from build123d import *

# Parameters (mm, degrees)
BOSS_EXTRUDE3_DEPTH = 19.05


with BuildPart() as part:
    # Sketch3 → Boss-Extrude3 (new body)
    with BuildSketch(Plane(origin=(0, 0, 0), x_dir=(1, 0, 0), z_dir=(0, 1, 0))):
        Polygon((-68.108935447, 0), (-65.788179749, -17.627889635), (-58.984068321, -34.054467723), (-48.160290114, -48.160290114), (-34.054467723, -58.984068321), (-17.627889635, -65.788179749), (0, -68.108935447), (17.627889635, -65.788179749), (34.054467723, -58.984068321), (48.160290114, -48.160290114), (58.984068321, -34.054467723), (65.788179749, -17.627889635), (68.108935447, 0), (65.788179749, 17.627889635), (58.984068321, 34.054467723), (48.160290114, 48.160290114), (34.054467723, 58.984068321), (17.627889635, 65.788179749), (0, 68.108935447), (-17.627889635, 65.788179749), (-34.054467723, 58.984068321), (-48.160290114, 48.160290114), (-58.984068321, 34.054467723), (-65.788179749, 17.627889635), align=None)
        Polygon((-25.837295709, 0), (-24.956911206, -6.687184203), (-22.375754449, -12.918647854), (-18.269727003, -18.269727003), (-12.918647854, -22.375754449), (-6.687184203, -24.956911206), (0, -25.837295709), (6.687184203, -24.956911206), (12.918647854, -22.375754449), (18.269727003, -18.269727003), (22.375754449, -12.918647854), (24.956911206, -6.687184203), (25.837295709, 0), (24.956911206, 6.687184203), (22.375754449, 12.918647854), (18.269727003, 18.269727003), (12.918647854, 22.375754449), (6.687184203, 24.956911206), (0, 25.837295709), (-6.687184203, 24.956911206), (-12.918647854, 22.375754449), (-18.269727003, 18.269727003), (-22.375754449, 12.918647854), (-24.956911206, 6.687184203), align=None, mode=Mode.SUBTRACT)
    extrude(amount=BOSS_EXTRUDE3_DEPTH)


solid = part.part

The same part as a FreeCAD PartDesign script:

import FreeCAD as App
import Part
import Sketcher

V = App.Vector
Q = App.Units.Quantity


def add_polygon(sketch, points):
    """Adds a closed chain of lines whose ends are joined by coincident constraints."""
    first, n = sketch.GeometryCount, len(points)
    for a, b in zip(points, points[1:] + points[:1]):
        sketch.addGeometry(Part.LineSegment(App.Vector(*a, 0), App.Vector(*b, 0)), False)
    for i in range(n):
        sketch.addConstraint(Sketcher.Constraint("Coincident", first + i, 2, first + (i + 1) % n, 1))

doc = App.newDocument("Part")
body = doc.addObject("PartDesign::Body", "Body")

sketch1 = body.newObject("Sketcher::SketchObject", "Sketch")
sketch1.AttachmentSupport = (doc.getObject("XZ_Plane"), [""])
sketch1.MapMode = "FlatFace"
add_polygon(sketch1, [(-68, 0), (-66, 18), (-59, 34), (-48, 48), (-34, 59), (-18, 66), (0, 68), (18, 66), (34, 59), (48, 48), (59, 34), (66, 18), (68, 0), (66, -18), (59, -34), (48, -48), (34, -59), (18, -66), (0, -68), (-18, -66), (-34, -59), (-48, -48), (-59, -34), (-66, -18)])
add_polygon(sketch1, [(-25, 7), (-26, 0), (-25, -7), (-22, -13), (-18, -18), (-13, -22), (-7, -25), (0, -26), (7, -25), (13, -22), (18, -18), (22, -13), (25, -7), (26, 0), (25, 7), (22, 13), (18, 18), (13, 22), (7, 25), (0, 26), (-7, 25), (-13, 22), (-18, 18), (-22, 13)])
sketch1.addConstraint([
    Sketcher.Constraint("Symmetric", 0, 2, 12, 2, -1, 1),
    Sketcher.Constraint("Symmetric", 1, 2, 13, 2, -1, 1),
    Sketcher.Constraint("Symmetric", 2, 2, 14, 2, -1, 1),
    Sketcher.Constraint("Symmetric", 3, 2, 15, 2, -1, 1),
    Sketcher.Constraint("Symmetric", 4, 2, 16, 2, -1, 1),
    Sketcher.Constraint("Symmetric", 5, 2, 17, 2, -1, 1),
    Sketcher.Constraint("Symmetric", 6, 2, 18, 2, -1, 1),
    Sketcher.Constraint("Symmetric", 7, 2, 19, 2, -1, 1),
    Sketcher.Constraint("Symmetric", 8, 2, 20, 2, -1, 1),
    Sketcher.Constraint("Symmetric", 9, 2, 21, 2, -1, 1),
    Sketcher.Constraint("Symmetric", 10, 2, 22, 2, -1, 1),
    Sketcher.Constraint("Symmetric", 11, 2, 23, 2, -1, 1),
    Sketcher.Constraint("Symmetric", 24, 2, 36, 2, -1, 1),
    Sketcher.Constraint("Symmetric", 25, 2, 37, 2, -1, 1),
    Sketcher.Constraint("Symmetric", 26, 2, 38, 2, -1, 1),
    Sketcher.Constraint("Symmetric", 27, 2, 39, 2, -1, 1),
    Sketcher.Constraint("Symmetric", 28, 2, 40, 2, -1, 1),
    Sketcher.Constraint("Symmetric", 29, 2, 41, 2, -1, 1),
    Sketcher.Constraint("Symmetric", 30, 2, 42, 2, -1, 1),
    Sketcher.Constraint("Symmetric", 31, 2, 43, 2, -1, 1),
    Sketcher.Constraint("Symmetric", 32, 2, 44, 2, -1, 1),
    Sketcher.Constraint("Symmetric", 33, 2, 45, 2, -1, 1),
    Sketcher.Constraint("Symmetric", 34, 2, 46, 2, -1, 1),
    Sketcher.Constraint("Symmetric", 35, 2, 47, 2, -1, 1),
    Sketcher.Constraint("Symmetric", 4, 2, 6, 2, -2),
    Sketcher.Constraint("Symmetric", 3, 2, 7, 2, -2),
    Sketcher.Constraint("Symmetric", 2, 2, 8, 2, -2),
    Sketcher.Constraint("Symmetric", 1, 2, 9, 2, -2),
    Sketcher.Constraint("Symmetric", 0, 2, 10, 2, -2),
    Sketcher.Constraint("Symmetric", 29, 2, 31, 2, -2),
    Sketcher.Constraint("Symmetric", 28, 2, 32, 2, -2),
    Sketcher.Constraint("Symmetric", 27, 2, 33, 2, -2),
    Sketcher.Constraint("Symmetric", 26, 2, 34, 2, -2),
    Sketcher.Constraint("Symmetric", 25, 2, 35, 2, -2),
    Sketcher.Constraint("PointOnObject", 5, 2, -2),
    Sketcher.Constraint("PointOnObject", 11, 2, -1),
    Sketcher.Constraint("PointOnObject", 24, 2, -1),
    Sketcher.Constraint("PointOnObject", 30, 2, -2),
    Sketcher.Constraint("Perpendicular", 0, 6),
    Sketcher.Constraint("Perpendicular", 1, 7),
    Sketcher.Constraint("Perpendicular", 2, 8),
    Sketcher.Constraint("Perpendicular", 18, 24),
    Sketcher.Constraint("Parallel", 22, 26),
    Sketcher.Constraint("Parallel", 21, 27),
    Sketcher.Constraint("Parallel", 20, 28),
    Sketcher.Constraint("Parallel", 19, 29),
    Sketcher.Constraint("Perpendicular", 24, 30),
    Sketcher.Constraint("Equal", 0, 1),
    Sketcher.Constraint("Equal", 1, 2),
    Sketcher.Constraint("Equal", 2, 3),
    Sketcher.Constraint("Equal", 3, 4),
    Sketcher.Constraint("Equal", 4, 5),
    Sketcher.Constraint("Equal", 25, 26),
    Sketcher.Constraint("Equal", 26, 27),
    Sketcher.Constraint("Equal", 27, 28),
    Sketcher.Constraint("Equal", 28, 29),
    Sketcher.Constraint("Equal", 29, 30),
    Sketcher.Constraint("Distance", 0, Q("0.7 in")),
    Sketcher.Constraint("Angle", 0, Q("82.5 deg")),
    Sketcher.Constraint("Angle", 1, Q("67.5 deg")),
    Sketcher.Constraint("Angle", 2, Q("52.5 deg")),
    Sketcher.Constraint("DistanceX", 25, 2, -1, 1, 24.956911),
])
pad1 = body.newObject("PartDesign::Pad", "Pad")
pad1.Profile = sketch1
pad1.Length = Q("0.75 in")
pad1.Reversed = True

doc.recompute()
